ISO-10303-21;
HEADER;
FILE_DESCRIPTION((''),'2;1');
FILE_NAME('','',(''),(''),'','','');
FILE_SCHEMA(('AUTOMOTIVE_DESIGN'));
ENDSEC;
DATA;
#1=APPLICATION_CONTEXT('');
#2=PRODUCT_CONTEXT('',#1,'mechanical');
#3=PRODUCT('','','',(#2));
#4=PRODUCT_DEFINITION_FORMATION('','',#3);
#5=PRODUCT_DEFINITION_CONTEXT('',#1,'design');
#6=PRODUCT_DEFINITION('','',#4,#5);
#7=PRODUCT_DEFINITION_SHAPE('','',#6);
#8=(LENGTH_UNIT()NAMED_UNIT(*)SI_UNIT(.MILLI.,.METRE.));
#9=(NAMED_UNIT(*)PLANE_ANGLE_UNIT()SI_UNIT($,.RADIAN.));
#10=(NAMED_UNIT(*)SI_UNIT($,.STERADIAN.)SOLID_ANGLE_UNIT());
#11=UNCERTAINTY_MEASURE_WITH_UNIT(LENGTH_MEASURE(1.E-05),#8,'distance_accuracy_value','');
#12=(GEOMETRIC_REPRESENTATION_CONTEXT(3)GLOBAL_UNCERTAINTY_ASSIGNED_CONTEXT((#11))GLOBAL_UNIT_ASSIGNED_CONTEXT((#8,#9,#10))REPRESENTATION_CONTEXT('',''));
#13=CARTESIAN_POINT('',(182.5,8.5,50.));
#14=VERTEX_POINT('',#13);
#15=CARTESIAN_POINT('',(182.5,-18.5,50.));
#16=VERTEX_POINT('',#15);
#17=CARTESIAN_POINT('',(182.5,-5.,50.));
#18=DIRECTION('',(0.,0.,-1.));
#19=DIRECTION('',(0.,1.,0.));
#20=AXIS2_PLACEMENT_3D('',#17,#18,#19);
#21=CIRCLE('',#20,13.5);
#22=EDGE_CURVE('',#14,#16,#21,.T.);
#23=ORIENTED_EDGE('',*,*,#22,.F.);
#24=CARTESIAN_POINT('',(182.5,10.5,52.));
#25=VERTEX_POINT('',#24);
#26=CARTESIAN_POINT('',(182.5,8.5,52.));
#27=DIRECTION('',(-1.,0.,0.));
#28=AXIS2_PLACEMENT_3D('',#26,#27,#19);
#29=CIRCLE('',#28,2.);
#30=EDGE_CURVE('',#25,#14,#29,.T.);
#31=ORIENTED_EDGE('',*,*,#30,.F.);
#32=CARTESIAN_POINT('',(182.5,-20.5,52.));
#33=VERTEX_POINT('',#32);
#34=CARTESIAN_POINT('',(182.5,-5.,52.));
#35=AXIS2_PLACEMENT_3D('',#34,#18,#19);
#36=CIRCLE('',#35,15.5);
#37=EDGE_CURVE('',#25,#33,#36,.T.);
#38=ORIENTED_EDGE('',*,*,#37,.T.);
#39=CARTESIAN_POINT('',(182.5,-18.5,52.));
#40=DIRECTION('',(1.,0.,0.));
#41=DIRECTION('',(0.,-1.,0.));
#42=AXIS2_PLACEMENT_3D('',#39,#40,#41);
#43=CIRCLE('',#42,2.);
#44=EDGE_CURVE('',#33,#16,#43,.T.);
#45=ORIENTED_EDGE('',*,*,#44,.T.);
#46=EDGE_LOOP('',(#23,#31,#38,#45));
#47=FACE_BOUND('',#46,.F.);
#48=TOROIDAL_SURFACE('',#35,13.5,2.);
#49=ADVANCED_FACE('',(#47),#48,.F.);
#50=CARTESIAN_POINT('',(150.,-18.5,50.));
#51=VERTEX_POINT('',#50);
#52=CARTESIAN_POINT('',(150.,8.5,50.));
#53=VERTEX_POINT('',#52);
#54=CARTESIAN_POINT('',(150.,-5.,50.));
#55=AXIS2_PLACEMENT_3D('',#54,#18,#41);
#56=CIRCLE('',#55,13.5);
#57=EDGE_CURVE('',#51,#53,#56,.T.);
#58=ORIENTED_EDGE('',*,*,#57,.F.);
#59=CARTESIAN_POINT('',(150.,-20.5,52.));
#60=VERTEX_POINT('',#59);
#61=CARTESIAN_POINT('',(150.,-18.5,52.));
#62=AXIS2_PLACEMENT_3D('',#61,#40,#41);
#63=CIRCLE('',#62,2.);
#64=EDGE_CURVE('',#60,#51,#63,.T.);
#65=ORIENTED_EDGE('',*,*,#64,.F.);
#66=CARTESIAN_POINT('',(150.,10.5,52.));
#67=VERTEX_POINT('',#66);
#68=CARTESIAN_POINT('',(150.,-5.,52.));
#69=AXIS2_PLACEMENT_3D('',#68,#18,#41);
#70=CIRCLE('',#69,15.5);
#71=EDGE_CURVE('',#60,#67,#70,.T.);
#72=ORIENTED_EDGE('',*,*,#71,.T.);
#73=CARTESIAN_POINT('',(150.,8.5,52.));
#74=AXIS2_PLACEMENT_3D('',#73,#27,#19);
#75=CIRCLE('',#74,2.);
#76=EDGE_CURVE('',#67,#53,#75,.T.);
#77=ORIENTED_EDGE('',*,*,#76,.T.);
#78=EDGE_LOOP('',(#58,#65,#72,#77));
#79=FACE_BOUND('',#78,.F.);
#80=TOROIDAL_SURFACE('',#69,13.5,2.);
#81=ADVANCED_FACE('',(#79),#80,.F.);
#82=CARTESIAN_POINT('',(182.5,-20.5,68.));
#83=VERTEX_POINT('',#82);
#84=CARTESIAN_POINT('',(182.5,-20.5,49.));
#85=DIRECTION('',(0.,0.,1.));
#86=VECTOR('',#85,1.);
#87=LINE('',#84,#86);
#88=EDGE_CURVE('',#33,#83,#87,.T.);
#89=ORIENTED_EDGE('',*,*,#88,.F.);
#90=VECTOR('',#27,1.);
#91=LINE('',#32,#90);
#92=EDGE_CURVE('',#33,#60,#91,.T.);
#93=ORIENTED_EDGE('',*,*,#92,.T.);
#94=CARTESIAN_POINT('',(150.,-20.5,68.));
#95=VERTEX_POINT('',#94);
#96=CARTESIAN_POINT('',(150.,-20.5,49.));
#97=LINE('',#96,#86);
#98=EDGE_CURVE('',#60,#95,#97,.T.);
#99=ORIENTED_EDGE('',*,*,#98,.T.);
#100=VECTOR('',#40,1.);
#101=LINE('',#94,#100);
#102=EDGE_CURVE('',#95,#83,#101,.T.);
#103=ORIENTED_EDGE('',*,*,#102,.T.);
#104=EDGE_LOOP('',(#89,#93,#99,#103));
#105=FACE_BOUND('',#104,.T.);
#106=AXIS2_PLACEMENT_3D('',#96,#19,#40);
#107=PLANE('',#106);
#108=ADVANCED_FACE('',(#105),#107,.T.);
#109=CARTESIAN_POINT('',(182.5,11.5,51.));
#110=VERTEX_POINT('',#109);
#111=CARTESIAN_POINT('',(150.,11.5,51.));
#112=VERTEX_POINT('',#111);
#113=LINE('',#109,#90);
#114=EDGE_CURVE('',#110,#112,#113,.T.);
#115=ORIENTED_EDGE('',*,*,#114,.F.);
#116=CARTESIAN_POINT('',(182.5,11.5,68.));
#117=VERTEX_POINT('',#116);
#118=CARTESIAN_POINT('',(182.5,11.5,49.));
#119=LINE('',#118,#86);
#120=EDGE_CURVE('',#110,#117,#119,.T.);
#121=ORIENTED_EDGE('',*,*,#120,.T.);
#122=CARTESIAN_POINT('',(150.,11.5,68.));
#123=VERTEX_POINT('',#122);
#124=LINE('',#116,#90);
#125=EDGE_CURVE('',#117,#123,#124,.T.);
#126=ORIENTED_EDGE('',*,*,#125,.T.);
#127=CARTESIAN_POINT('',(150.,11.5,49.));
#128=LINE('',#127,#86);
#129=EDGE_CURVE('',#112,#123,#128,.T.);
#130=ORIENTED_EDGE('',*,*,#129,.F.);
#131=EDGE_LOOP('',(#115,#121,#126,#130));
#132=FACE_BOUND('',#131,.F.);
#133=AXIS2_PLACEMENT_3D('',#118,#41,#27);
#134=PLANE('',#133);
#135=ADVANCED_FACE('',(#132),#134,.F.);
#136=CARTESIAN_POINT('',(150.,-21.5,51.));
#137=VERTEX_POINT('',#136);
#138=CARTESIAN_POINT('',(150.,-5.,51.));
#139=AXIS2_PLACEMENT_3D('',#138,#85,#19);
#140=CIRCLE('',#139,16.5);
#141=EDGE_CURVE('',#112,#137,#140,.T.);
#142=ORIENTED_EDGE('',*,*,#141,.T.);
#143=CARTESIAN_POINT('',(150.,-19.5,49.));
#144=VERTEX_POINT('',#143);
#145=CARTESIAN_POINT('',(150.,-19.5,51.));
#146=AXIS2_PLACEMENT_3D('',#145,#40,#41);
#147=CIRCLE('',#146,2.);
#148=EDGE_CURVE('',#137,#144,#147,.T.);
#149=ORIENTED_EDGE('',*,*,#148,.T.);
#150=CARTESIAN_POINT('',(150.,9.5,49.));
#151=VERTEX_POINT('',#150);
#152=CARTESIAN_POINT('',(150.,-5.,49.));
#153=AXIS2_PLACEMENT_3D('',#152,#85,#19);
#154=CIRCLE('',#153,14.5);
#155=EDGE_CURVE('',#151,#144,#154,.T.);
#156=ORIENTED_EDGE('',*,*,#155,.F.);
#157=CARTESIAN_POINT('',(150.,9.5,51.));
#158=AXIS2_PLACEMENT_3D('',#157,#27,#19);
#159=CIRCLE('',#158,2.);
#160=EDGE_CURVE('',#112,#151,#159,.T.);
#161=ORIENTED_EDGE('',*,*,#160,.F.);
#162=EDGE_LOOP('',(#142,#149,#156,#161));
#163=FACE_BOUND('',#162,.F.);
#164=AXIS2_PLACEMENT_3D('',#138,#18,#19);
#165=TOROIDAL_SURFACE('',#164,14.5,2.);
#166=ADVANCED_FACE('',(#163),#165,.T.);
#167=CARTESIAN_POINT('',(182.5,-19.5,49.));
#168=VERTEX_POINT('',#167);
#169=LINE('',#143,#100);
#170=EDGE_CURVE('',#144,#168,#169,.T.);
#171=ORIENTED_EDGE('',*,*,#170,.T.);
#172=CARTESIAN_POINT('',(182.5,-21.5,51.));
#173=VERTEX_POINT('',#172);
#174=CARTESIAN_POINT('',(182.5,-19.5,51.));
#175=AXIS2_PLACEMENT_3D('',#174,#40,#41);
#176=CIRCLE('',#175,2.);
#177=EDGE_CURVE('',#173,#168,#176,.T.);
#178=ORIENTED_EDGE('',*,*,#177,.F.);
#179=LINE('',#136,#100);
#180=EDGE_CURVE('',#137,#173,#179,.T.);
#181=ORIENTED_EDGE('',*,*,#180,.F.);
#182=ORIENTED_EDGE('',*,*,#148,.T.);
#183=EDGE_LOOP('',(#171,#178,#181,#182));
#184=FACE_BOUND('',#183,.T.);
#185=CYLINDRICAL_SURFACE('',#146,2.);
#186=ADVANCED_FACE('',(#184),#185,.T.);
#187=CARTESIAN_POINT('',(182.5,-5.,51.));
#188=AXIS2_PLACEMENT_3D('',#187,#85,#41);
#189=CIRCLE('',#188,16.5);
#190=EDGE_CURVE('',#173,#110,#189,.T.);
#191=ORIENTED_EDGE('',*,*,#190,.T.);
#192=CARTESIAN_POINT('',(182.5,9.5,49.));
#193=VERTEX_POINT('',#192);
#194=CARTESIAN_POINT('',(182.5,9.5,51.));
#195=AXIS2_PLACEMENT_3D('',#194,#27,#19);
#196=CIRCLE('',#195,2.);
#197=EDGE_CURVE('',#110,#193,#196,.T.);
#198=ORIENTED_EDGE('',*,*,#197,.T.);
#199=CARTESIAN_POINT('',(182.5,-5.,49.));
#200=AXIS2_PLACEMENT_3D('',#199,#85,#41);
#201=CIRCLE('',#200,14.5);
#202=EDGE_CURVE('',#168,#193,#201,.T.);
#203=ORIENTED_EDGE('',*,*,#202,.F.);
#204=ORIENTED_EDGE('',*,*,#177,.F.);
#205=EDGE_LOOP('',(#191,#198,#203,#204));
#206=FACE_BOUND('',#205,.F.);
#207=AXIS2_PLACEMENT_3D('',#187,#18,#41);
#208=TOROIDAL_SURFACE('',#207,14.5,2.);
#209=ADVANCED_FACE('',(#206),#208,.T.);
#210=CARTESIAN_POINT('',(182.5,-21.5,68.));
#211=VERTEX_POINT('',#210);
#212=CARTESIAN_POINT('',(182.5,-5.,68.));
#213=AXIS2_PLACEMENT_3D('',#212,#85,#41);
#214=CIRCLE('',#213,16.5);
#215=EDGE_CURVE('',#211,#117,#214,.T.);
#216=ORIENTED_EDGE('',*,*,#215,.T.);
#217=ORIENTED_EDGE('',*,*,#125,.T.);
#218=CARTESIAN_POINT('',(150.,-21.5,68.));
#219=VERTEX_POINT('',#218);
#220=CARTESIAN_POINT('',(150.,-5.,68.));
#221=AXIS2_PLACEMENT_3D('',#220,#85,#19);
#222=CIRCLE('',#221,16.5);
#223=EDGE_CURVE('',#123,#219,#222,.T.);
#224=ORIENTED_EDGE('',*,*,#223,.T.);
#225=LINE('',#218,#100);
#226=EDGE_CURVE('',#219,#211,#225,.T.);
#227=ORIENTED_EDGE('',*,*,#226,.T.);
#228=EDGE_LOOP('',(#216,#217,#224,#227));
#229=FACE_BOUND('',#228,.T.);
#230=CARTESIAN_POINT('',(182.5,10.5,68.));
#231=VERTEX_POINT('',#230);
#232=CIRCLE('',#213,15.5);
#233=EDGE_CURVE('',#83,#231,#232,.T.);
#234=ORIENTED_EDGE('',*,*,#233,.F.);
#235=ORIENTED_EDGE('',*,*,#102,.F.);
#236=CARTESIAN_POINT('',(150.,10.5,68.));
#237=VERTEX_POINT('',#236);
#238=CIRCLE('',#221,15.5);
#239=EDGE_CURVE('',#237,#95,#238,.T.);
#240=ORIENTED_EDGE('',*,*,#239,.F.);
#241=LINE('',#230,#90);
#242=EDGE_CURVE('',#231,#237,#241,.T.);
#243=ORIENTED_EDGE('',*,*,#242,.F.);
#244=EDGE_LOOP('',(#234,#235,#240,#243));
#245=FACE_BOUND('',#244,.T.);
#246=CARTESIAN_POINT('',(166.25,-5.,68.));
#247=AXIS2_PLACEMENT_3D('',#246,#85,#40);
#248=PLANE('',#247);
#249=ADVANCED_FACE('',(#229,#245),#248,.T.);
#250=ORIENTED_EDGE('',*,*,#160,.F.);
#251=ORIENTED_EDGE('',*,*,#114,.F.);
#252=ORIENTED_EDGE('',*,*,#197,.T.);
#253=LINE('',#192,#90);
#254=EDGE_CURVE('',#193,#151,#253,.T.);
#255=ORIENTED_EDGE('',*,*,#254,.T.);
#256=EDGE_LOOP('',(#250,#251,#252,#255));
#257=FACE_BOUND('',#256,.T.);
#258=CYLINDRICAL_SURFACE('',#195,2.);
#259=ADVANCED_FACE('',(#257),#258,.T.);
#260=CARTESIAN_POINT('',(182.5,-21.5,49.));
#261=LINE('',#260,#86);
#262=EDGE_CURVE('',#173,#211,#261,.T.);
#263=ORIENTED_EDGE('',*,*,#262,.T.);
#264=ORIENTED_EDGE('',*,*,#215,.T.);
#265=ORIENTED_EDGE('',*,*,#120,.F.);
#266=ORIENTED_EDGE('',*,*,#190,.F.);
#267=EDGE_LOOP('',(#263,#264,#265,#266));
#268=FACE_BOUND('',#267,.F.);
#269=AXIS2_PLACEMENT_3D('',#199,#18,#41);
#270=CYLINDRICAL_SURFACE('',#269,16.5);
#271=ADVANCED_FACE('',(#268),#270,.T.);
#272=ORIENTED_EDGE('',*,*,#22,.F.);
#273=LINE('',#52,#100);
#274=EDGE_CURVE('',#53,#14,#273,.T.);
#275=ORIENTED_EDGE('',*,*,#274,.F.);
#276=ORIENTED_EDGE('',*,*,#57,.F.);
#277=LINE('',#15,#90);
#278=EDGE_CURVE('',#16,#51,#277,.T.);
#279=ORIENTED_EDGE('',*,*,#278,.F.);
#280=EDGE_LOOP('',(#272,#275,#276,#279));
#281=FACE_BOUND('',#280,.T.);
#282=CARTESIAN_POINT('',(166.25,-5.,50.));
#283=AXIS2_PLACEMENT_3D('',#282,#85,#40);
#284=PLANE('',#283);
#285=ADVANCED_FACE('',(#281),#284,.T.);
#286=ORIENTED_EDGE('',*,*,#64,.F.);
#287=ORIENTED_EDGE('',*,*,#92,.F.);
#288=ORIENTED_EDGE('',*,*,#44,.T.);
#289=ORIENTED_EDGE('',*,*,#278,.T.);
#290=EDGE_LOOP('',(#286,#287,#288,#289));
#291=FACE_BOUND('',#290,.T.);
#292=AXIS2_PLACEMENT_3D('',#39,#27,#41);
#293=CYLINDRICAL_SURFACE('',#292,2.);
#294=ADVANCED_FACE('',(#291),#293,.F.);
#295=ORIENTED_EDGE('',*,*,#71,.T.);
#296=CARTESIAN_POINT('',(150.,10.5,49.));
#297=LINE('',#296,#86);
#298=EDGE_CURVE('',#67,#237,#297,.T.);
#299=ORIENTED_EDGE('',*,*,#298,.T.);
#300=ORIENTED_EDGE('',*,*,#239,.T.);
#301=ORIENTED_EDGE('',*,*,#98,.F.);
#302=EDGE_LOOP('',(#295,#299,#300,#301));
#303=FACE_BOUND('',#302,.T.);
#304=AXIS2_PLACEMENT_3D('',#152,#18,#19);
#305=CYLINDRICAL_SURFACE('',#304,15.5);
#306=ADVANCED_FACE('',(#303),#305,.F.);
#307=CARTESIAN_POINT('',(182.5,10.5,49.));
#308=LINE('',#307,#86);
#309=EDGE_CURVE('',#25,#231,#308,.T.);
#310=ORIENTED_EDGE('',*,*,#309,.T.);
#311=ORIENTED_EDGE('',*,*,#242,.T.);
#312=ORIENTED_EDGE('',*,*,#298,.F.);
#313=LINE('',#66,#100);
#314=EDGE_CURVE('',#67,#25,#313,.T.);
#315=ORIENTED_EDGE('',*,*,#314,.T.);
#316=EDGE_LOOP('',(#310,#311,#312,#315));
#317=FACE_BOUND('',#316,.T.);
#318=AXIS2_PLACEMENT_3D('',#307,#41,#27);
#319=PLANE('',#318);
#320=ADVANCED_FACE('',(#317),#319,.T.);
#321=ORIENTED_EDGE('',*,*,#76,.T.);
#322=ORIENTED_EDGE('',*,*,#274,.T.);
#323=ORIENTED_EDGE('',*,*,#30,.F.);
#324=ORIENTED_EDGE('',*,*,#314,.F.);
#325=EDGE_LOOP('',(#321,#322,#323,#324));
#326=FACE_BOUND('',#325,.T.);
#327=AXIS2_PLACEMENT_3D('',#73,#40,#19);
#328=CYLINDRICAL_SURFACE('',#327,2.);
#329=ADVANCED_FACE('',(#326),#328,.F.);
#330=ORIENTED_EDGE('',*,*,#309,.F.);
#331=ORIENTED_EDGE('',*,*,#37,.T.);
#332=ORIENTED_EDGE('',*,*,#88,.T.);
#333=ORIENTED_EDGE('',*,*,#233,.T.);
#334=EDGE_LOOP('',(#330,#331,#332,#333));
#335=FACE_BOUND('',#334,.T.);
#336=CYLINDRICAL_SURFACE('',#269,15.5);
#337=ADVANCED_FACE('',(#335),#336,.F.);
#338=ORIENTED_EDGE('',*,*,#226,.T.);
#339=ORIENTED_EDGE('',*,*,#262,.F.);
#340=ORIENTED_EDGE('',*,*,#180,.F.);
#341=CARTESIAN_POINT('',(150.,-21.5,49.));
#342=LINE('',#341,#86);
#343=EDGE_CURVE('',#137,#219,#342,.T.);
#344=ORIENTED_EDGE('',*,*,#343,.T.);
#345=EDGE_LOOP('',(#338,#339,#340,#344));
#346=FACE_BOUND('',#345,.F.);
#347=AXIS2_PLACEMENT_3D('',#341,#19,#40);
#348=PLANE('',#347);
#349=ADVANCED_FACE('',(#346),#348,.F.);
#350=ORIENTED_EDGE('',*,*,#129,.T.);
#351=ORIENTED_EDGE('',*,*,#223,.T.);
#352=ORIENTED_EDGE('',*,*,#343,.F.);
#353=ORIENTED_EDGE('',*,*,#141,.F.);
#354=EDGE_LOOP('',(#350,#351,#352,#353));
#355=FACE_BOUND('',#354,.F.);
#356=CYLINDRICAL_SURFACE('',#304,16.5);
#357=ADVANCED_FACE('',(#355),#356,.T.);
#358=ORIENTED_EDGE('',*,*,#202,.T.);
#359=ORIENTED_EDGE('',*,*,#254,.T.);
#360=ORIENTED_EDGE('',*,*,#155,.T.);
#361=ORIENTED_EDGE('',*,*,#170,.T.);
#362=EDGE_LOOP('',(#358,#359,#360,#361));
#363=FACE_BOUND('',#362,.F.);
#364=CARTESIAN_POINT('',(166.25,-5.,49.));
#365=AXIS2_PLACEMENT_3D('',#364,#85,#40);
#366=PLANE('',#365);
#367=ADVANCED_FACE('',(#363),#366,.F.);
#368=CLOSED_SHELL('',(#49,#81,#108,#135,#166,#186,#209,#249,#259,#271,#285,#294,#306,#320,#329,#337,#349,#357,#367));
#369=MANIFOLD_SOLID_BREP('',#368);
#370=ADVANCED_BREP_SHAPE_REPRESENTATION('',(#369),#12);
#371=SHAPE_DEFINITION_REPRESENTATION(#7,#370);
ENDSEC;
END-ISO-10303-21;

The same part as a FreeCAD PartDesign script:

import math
import FreeCAD as App
import Part
import Sketcher


def edges_at(feature, points):
    """Names of the edges that pass closest to the given points."""
    edges = feature.Shape.Edges
    near = lambda p: min(range(len(edges)), key=lambda i: edges[i].distToShape(Part.Vertex(*p))[0])
    return sorted({f"Edge{near(p) + 1}" for p in points})


def faces_at(feature, points):
    """Names of the faces that lie closest to the given points."""
    faces = feature.Shape.Faces
    near = lambda p: min(range(len(faces)), key=lambda i: faces[i].distToShape(Part.Vertex(*p))[0])
    return sorted({f"Face{near(p) + 1}" for p in points})

doc = App.newDocument("Part")
params = doc.addObject("Spreadsheet::Sheet", "Params")
for row, (alias, value) in enumerate([
    ("sketch1_radius", "16.5 mm"),
    ("sketch1_width", "32.5 mm"),
    ("pad1_length", "19 mm"),
    ("thickness_wall", "1 mm"),
    ("fillet_radius", "2 mm"),
    ("fillet2_radius", "2 mm"),
], start=1):
    params.set(f"A{row}", alias)
    params.set(f"B{row}", "=" + value)
    params.setAlias(f"B{row}", alias)

body = doc.addObject("PartDesign::Body", "Body")

# Sketch on XY plane
sketch1 = body.newObject("Sketcher::SketchObject", "Sketch")
sketch1.AttachmentSupport = (doc.getObject("XY_Plane"), [""])
sketch1.MapMode = "FlatFace"
sketch1.addGeometry([
    Part.ArcOfCircle(Part.Circle(App.Vector(-83, 56, 0), App.Vector(0, 0, 1), 16), math.radians(90), math.radians(270)),
    Part.LineSegment(App.Vector(-83, 40, 0), App.Vector(-50, 40, 0)),
    Part.ArcOfCircle(Part.Circle(App.Vector(-50, 56, 0), App.Vector(0, 0, 1), 16), math.radians(-90), math.radians(90)),
    Part.LineSegment(App.Vector(-50, 72, 0), App.Vector(-83, 72, 0)),
], False)
sketch1.addConstraint([
    Sketcher.Constraint("Tangent", 0, 2, 1, 1),
    Sketcher.Constraint("Tangent", 1, 2, 2, 1),
    Sketcher.Constraint("Tangent", 2, 2, 3, 1),
    Sketcher.Constraint("Tangent", 3, 2, 0, 1),
    Sketcher.Constraint("Horizontal", 1),
    Sketcher.Constraint("Horizontal", 3),
    Sketcher.Constraint("Radius", 0, 16.5),
    Sketcher.Constraint("DistanceX", 1, 1, 1, 2, 32.5),
    Sketcher.Constraint("DistanceX", 0, 3, -1, 1, 83.0),
    Sketcher.Constraint("DistanceY", -1, 1, 0, 3, 56.0),
])
sketch1.setExpression("Constraints[6]", "Params.sketch1_radius")
sketch1.setExpression("Constraints[7]", "Params.sketch1_width")
pad1 = body.newObject("PartDesign::Pad", "Pad")
pad1.Profile = sketch1
pad1.setExpression("Length", "Params.pad1_length")
doc.recompute()

thickness = body.newObject("PartDesign::Thickness", "Thickness")
thickness.Base = (pad1, faces_at(pad1, [(-66.75, 56, 19)]))
thickness.setExpression("Value", "Params.thickness_wall")
thickness.Reversed = True
thickness.Join = "Arc"
doc.recompute()

fillet = body.newObject("PartDesign::Fillet", "Fillet")
fillet.Base = (thickness, edges_at(thickness, [
    (-98.5, 56, 1),
    (-66.75, 40.5, 1),
    (-35, 56, 1),
    (-66.75, 71.5, 1),
]))
fillet.setExpression("Radius", "Params.fillet_radius")
doc.recompute()

fillet2 = body.newObject("PartDesign::Fillet", "Fillet001")
fillet2.Base = (fillet, edges_at(fillet, [
    (-99.5, 56, 0),
    (-66.75, 39.5, 0),
    (-34, 56, 0),
    (-66.75, 72.5, 0),
]))
fillet2.setExpression("Radius", "Params.fillet2_radius")
body2 = doc.addObject("PartDesign::Body", "Body001")
doc.recompute()

body.Placement = App.Placement(App.Vector(233, -61, 49), App.Rotation(App.Vector(0, 0, 1), 0))
boolean = body2.newObject("PartDesign::Boolean", "Boolean")
boolean.Type = "Fuse"
boolean.addObjects([body])

doc.recompute()
